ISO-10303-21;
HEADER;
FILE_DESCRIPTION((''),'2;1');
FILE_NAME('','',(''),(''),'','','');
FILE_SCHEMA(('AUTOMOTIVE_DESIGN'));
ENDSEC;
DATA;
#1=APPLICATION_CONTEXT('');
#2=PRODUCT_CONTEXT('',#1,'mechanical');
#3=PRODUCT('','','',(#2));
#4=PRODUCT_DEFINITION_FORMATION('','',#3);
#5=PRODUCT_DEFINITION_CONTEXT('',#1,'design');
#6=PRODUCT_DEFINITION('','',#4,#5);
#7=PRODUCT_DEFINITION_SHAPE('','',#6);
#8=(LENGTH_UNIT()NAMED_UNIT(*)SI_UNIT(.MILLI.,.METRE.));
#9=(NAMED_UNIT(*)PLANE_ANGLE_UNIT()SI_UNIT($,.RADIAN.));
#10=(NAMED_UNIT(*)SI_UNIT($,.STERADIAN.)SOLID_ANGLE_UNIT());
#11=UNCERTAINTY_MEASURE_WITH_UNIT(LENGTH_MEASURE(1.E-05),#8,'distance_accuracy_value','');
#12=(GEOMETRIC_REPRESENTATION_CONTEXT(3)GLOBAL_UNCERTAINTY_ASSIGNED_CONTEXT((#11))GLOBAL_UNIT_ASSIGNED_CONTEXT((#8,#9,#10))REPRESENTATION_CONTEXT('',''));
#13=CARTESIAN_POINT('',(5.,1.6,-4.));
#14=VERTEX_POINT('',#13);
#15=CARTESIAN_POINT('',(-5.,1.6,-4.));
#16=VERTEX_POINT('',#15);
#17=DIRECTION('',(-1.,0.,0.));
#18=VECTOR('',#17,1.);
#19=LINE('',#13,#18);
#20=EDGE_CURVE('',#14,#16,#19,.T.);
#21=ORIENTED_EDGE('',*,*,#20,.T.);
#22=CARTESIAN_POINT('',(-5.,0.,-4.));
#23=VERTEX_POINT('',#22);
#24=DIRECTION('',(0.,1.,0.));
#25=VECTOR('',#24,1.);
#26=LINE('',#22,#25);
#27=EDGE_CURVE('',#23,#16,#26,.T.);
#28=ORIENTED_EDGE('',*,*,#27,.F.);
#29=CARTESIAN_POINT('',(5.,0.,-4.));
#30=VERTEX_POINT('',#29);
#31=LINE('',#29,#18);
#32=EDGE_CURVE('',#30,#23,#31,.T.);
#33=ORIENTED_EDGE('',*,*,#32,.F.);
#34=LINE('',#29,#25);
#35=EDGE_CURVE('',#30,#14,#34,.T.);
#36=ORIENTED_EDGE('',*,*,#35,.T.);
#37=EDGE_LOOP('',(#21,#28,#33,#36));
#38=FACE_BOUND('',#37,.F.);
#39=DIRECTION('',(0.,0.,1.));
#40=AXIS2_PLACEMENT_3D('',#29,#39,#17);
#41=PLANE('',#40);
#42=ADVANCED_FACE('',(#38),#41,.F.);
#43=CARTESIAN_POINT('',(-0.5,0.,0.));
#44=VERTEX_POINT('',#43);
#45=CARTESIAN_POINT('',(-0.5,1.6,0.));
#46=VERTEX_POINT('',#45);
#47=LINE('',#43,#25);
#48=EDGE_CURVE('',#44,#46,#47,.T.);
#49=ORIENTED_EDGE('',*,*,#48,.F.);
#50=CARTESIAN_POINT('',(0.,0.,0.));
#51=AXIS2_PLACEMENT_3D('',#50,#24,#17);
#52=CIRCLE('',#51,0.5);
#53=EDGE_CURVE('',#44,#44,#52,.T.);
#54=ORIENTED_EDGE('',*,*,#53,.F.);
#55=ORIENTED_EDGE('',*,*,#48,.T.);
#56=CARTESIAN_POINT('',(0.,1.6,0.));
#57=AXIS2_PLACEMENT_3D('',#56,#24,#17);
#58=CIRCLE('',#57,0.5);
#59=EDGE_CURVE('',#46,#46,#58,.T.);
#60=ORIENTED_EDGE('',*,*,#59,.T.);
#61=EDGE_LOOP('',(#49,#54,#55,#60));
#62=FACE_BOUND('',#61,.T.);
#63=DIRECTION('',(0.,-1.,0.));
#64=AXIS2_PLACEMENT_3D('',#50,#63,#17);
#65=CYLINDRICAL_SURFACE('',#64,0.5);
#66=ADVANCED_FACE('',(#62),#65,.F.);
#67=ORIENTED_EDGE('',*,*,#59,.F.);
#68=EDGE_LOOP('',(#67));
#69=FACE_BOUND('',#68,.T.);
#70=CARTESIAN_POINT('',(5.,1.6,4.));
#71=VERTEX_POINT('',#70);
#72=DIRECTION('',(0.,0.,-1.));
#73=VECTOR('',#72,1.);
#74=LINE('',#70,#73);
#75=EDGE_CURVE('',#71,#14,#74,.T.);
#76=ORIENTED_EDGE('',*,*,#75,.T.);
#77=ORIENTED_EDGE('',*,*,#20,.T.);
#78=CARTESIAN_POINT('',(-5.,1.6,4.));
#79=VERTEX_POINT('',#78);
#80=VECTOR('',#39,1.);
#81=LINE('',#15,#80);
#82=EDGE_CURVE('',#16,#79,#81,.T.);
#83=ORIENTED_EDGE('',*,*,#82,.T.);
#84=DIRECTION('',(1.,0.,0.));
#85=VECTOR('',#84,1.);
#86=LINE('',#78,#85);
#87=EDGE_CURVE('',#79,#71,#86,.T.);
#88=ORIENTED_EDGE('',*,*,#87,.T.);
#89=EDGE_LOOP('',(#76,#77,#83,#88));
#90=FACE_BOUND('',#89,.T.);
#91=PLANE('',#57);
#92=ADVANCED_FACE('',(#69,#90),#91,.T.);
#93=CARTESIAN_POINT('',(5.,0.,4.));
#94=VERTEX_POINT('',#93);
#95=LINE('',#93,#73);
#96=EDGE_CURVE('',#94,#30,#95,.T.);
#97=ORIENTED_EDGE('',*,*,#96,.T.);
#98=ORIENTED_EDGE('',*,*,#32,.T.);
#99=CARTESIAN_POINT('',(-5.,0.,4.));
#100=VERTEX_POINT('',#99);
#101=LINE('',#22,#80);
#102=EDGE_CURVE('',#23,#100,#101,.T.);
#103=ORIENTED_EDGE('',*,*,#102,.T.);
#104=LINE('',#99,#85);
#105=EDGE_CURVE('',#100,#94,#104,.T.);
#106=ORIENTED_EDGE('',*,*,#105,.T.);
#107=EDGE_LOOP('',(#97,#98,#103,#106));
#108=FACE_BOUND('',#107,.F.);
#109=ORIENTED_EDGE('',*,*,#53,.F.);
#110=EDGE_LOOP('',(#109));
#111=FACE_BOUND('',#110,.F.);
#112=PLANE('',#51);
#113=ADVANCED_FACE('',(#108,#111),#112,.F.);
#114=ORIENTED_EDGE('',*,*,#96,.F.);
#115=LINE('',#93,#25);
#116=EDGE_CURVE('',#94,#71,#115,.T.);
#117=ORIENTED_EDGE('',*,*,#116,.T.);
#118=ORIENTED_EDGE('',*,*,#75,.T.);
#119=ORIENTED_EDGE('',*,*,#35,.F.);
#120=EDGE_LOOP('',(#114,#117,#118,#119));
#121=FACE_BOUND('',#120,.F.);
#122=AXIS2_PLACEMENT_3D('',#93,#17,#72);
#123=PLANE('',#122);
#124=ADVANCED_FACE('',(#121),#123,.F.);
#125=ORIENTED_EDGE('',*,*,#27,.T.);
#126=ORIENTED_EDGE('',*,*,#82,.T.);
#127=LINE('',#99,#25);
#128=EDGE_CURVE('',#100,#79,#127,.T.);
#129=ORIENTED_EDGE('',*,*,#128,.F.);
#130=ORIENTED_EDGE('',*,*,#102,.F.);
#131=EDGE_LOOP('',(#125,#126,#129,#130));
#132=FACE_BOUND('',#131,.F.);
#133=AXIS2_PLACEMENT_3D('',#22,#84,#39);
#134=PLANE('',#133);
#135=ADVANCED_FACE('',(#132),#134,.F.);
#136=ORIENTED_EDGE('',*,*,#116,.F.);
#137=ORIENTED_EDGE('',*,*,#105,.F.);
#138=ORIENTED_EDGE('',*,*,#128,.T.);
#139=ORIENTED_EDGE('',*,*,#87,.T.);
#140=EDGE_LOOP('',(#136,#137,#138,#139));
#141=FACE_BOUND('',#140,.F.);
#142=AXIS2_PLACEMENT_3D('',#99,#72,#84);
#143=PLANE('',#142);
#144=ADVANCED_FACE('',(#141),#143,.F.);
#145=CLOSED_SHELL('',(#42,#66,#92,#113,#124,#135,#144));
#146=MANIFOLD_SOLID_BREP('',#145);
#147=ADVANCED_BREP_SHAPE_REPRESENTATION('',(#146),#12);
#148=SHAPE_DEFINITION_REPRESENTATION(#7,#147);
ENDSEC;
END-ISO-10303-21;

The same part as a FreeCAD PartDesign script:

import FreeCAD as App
import Part
import Sketcher
from FreeCAD import Vector

doc = App.newDocument("Part")
body = doc.addObject("PartDesign::Body", "Body")

# Sketch on XZ plane
sketch1 = body.newObject("Sketcher::SketchObject", "Sketch")
sketch1.AttachmentSupport = (doc.getObject("XZ_Plane"), [""])
sketch1.MapMode = "FlatFace"
sketch1.addGeometry(Part.LineSegment(Vector(-5, -4, 0), Vector(-5, 4, 0)), False)
sketch1.addGeometry(Part.LineSegment(Vector(-5, 4, 0), Vector(5, 4, 0)), False)
sketch1.addGeometry(Part.LineSegment(Vector(5, 4, 0), Vector(5, -4, 0)), False)
sketch1.addGeometry(Part.LineSegment(Vector(5, -4, 0), Vector(-5, -4, 0)), False)
sketch1.addGeometry(Part.Circle(Vector(0, 0, 0), Vector(0, 0, 1), 0.5), False)
sketch1.addConstraint(Sketcher.Constraint("Coincident", 0, 2, 1, 1))
sketch1.addConstraint(Sketcher.Constraint("Coincident", 1, 2, 2, 1))
sketch1.addConstraint(Sketcher.Constraint("Coincident", 2, 2, 3, 1))
sketch1.addConstraint(Sketcher.Constraint("Coincident", 3, 2, 0, 1))
sketch1.addConstraint(Sketcher.Constraint("Vertical", 0))
sketch1.addConstraint(Sketcher.Constraint("Horizontal", 1))
sketch1.addConstraint(Sketcher.Constraint("Vertical", 2))
sketch1.addConstraint(Sketcher.Constraint("Horizontal", 3))
sketch1.addConstraint(Sketcher.Constraint("Coincident", 4, 3, -1, 1))
sketch1.addConstraint(Sketcher.Constraint("Symmetric", 0, 2, 2, 2, -1, 1))
sketch1.addConstraint(Sketcher.Constraint("Diameter", 4, 1.0))
sketch1.addConstraint(Sketcher.Constraint("DistanceX", 1, 1, 1, 2, 10.0))
sketch1.addConstraint(Sketcher.Constraint("DistanceY", 0, 1, 0, 2, 8.0))
pad1 = body.newObject("PartDesign::Pad", "Pad")
pad1.Profile = sketch1
pad1.Length = 1.6
pad1.Reversed = True

doc.recompute()
